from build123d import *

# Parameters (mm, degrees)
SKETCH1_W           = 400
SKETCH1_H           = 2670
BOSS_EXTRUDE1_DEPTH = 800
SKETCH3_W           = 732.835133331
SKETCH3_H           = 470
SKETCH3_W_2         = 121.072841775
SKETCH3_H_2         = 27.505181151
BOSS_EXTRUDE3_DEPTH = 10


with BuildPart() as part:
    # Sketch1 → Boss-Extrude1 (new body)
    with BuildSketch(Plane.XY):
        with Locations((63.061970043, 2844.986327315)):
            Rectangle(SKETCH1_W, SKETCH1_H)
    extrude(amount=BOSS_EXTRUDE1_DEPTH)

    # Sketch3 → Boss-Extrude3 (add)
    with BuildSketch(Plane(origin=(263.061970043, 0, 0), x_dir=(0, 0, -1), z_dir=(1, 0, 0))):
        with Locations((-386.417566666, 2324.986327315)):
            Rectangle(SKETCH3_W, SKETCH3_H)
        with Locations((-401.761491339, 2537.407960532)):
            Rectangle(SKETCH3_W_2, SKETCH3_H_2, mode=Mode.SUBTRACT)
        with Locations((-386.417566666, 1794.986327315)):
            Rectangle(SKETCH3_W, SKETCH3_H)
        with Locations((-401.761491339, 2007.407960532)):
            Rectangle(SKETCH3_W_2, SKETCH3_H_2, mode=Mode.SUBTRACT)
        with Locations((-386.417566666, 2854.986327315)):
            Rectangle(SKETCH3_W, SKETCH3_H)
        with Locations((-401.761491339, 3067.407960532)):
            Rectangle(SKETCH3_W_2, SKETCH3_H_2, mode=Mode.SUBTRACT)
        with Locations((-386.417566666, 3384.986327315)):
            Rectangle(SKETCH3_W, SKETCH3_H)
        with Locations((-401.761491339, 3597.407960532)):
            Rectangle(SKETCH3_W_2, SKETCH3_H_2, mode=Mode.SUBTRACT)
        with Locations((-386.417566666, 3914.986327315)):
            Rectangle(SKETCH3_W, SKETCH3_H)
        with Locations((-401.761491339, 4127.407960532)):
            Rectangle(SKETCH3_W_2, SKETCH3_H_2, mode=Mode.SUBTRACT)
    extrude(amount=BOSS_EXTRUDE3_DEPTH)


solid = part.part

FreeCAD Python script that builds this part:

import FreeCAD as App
import Part
import Sketcher
from FreeCAD import Vector
Q = App.Units.Quantity

doc = App.newDocument("Part")
body = doc.addObject("PartDesign::Body", "Body")

sketch1 = doc.addObject("Sketcher::SketchObject", "Sketch")
body.addObject(sketch1)
sketch1.AttachmentSupport = (doc.XY_Plane, [""])
sketch1.MapMode = "FlatFace"
sketch1.addGeometry(Part.LineSegment(Vector(-137, 4180, 0), Vector(-137, 1510, 0)), False)
sketch1.addGeometry(Part.LineSegment(Vector(-137, 1510, 0), Vector(263, 1510, 0)), False)
sketch1.addGeometry(Part.LineSegment(Vector(263, 1510, 0), Vector(263, 4180, 0)), False)
sketch1.addGeometry(Part.LineSegment(Vector(263, 4180, 0), Vector(-137, 4180, 0)), False)
sketch1.addConstraint(Sketcher.Constraint("Coincident", 0, 2, 1, 1))
sketch1.addConstraint(Sketcher.Constraint("Coincident", 1, 2, 2, 1))
sketch1.addConstraint(Sketcher.Constraint("Coincident", 2, 2, 3, 1))
sketch1.addConstraint(Sketcher.Constraint("Coincident", 3, 2, 0, 1))
sketch1.addConstraint(Sketcher.Constraint("Vertical", 0))
sketch1.addConstraint(Sketcher.Constraint("Horizontal", 1))
sketch1.addConstraint(Sketcher.Constraint("Vertical", 2))
sketch1.addConstraint(Sketcher.Constraint("Horizontal", 3))
sketch1.addConstraint(Sketcher.Constraint("DistanceX", 1, 1, 1, 2, Q("400 mm")))
sketch1.addConstraint(Sketcher.Constraint("DistanceY", 0, 2, 0, 1, Q("2670 mm")))
sketch1.addConstraint(Sketcher.Constraint("DistanceX", 0, 2, -1, 1, Q("136.93803 mm")))
sketch1.addConstraint(Sketcher.Constraint("DistanceY", -1, 1, 0, 2, Q("1509.986327 mm")))
pad1 = doc.addObject("PartDesign::Pad", "Pad")
body.addObject(pad1)
pad1.Profile = sketch1
pad1.Length = 800

sketch2 = doc.addObject("Sketcher::SketchObject", "Sketch001")
body.addObject(sketch2)
sketch2.AttachmentSupport = (doc.YZ_Plane, [""])
sketch2.MapMode = "FlatFace"
sketch2.AttachmentOffset = App.Placement(Vector(0, 0, 263.06197), App.Rotation())
sketch2.addGeometry(Part.LineSegment(Vector(2560, 753, 0), Vector(2090, 753, 0)), False)
sketch2.addGeometry(Part.LineSegment(Vector(2090, 753, 0), Vector(2090, 20, 0)), False)
sketch2.addGeometry(Part.LineSegment(Vector(2090, 20, 0), Vector(2560, 20, 0)), False)
sketch2.addGeometry(Part.LineSegment(Vector(2560, 20, 0), Vector(2560, 753, 0)), False)
sketch2.addGeometry(Part.LineSegment(Vector(2524, 341, 0), Vector(2524, 462, 0)), False)
sketch2.addGeometry(Part.LineSegment(Vector(2524, 462, 0), Vector(2551, 462, 0)), False)
sketch2.addGeometry(Part.LineSegment(Vector(2551, 462, 0), Vector(2551, 341, 0)), False)
sketch2.addGeometry(Part.LineSegment(Vector(2551, 341, 0), Vector(2524, 341, 0)), False)
sketch2.addGeometry(Part.LineSegment(Vector(2030, 753, 0), Vector(1560, 753, 0)), False)
sketch2.addGeometry(Part.LineSegment(Vector(1560, 753, 0), Vector(1560, 20, 0)), False)
sketch2.addGeometry(Part.LineSegment(Vector(1560, 20, 0), Vector(2030, 20, 0)), False)
sketch2.addGeometry(Part.LineSegment(Vector(2030, 20, 0), Vector(2030, 753, 0)), False)
sketch2.addGeometry(Part.LineSegment(Vector(1994, 341, 0), Vector(1994, 462, 0)), False)
sketch2.addGeometry(Part.LineSegment(Vector(1994, 462, 0), Vector(2021, 462, 0)), False)
sketch2.addGeometry(Part.LineSegment(Vector(2021, 462, 0), Vector(2021, 341, 0)), False)
sketch2.addGeometry(Part.LineSegment(Vector(2021, 341, 0), Vector(1994, 341, 0)), False)
sketch2.addGeometry(Part.LineSegment(Vector(3090, 753, 0), Vector(2620, 753, 0)), False)
sketch2.addGeometry(Part.LineSegment(Vector(2620, 753, 0), Vector(2620, 20, 0)), False)
sketch2.addGeometry(Part.LineSegment(Vector(2620, 20, 0), Vector(3090, 20, 0)), False)
sketch2.addGeometry(Part.LineSegment(Vector(3090, 20, 0), Vector(3090, 753, 0)), False)
sketch2.addGeometry(Part.LineSegment(Vector(3054, 341, 0), Vector(3054, 462, 0)), False)
sketch2.addGeometry(Part.LineSegment(Vector(3054, 462, 0), Vector(3081, 462, 0)), False)
sketch2.addGeometry(Part.LineSegment(Vector(3081, 462, 0), Vector(3081, 341, 0)), False)
sketch2.addGeometry(Part.LineSegment(Vector(3081, 341, 0), Vector(3054, 341, 0)), False)
sketch2.addGeometry(Part.LineSegment(Vector(3620, 753, 0), Vector(3150, 753, 0)), False)
sketch2.addGeometry(Part.LineSegment(Vector(3150, 753, 0), Vector(3150, 20, 0)), False)
sketch2.addGeometry(Part.LineSegment(Vector(3150, 20, 0), Vector(3620, 20, 0)), False)
sketch2.addGeometry(Part.LineSegment(Vector(3620, 20, 0), Vector(3620, 753, 0)), False)
sketch2.addGeometry(Part.LineSegment(Vector(3584, 341, 0), Vector(3584, 462, 0)), False)
sketch2.addGeometry(Part.LineSegment(Vector(3584, 462, 0), Vector(3611, 462, 0)), False)
sketch2.addGeometry(Part.LineSegment(Vector(3611, 462, 0), Vector(3611, 341, 0)), False)
sketch2.addGeometry(Part.LineSegment(Vector(3611, 341, 0), Vector(3584, 341, 0)), False)
sketch2.addGeometry(Part.LineSegment(Vector(4150, 753, 0), Vector(3680, 753, 0)), False)
sketch2.addGeometry(Part.LineSegment(Vector(3680, 753, 0), Vector(3680, 20, 0)), False)
sketch2.addGeometry(Part.LineSegment(Vector(3680, 20, 0), Vector(4150, 20, 0)), False)
sketch2.addGeometry(Part.LineSegment(Vector(4150, 20, 0), Vector(4150, 753, 0)), False)
sketch2.addGeometry(Part.LineSegment(Vector(4114, 341, 0), Vector(4114, 462, 0)), False)
sketch2.addGeometry(Part.LineSegment(Vector(4114, 462, 0), Vector(4141, 462, 0)), False)
sketch2.addGeometry(Part.LineSegment(Vector(4141, 462, 0), Vector(4141, 341, 0)), False)
sketch2.addGeometry(Part.LineSegment(Vector(4141, 341, 0), Vector(4114, 341, 0)), False)
sketch2.addConstraint(Sketcher.Constraint("Coincident", 0, 2, 1, 1))
sketch2.addConstraint(Sketcher.Constraint("Coincident", 1, 2, 2, 1))
sketch2.addConstraint(Sketcher.Constraint("Coincident", 2, 2, 3, 1))
sketch2.addConstraint(Sketcher.Constraint("Coincident", 3, 2, 0, 1))
sketch2.addConstraint(Sketcher.Constraint("Coincident", 4, 2, 5, 1))
sketch2.addConstraint(Sketcher.Constraint("Coincident", 5, 2, 6, 1))
sketch2.addConstraint(Sketcher.Constraint("Coincident", 6, 2, 7, 1))
sketch2.addConstraint(Sketcher.Constraint("Coincident", 7, 2, 4, 1))
sketch2.addConstraint(Sketcher.Constraint("Coincident", 8, 2, 9, 1))
sketch2.addConstraint(Sketcher.Constraint("Coincident", 9, 2, 10, 1))
sketch2.addConstraint(Sketcher.Constraint("Coincident", 10, 2, 11, 1))
sketch2.addConstraint(Sketcher.Constraint("Coincident", 11, 2, 8, 1))
sketch2.addConstraint(Sketcher.Constraint("Coincident", 12, 2, 13, 1))
sketch2.addConstraint(Sketcher.Constraint("Coincident", 13, 2, 14, 1))
sketch2.addConstraint(Sketcher.Constraint("Coincident", 14, 2, 15, 1))
sketch2.addConstraint(Sketcher.Constraint("Coincident", 15, 2, 12, 1))
sketch2.addConstraint(Sketcher.Constraint("Coincident", 16, 2, 17, 1))
sketch2.addConstraint(Sketcher.Constraint("Coincident", 17, 2, 18, 1))
sketch2.addConstraint(Sketcher.Constraint("Coincident", 18, 2, 19, 1))
sketch2.addConstraint(Sketcher.Constraint("Coincident", 19, 2, 16, 1))
sketch2.addConstraint(Sketcher.Constraint("Coincident", 20, 2, 21, 1))
sketch2.addConstraint(Sketcher.Constraint("Coincident", 21, 2, 22, 1))
sketch2.addConstraint(Sketcher.Constraint("Coincident", 22, 2, 23, 1))
sketch2.addConstraint(Sketcher.Constraint("Coincident", 23, 2, 20, 1))
sketch2.addConstraint(Sketcher.Constraint("Coincident", 24, 2, 25, 1))
sketch2.addConstraint(Sketcher.Constraint("Coincident", 25, 2, 26, 1))
sketch2.addConstraint(Sketcher.Constraint("Coincident", 26, 2, 27, 1))
sketch2.addConstraint(Sketcher.Constraint("Coincident", 27, 2, 24, 1))
sketch2.addConstraint(Sketcher.Constraint("Coincident", 28, 2, 29, 1))
sketch2.addConstraint(Sketcher.Constraint("Coincident", 29, 2, 30, 1))
sketch2.addConstraint(Sketcher.Constraint("Coincident", 30, 2, 31, 1))
sketch2.addConstraint(Sketcher.Constraint("Coincident", 31, 2, 28, 1))
sketch2.addConstraint(Sketcher.Constraint("Coincident", 32, 2, 33, 1))
sketch2.addConstraint(Sketcher.Constraint("Coincident", 33, 2, 34, 1))
sketch2.addConstraint(Sketcher.Constraint("Coincident", 34, 2, 35, 1))
sketch2.addConstraint(Sketcher.Constraint("Coincident", 35, 2, 32, 1))
sketch2.addConstraint(Sketcher.Constraint("Coincident", 36, 2, 37, 1))
sketch2.addConstraint(Sketcher.Constraint("Coincident", 37, 2, 38, 1))
sketch2.addConstraint(Sketcher.Constraint("Coincident", 38, 2, 39, 1))
sketch2.addConstraint(Sketcher.Constraint("Coincident", 39, 2, 36, 1))
sketch2.addConstraint(Sketcher.Constraint("Horizontal", 0))
sketch2.addConstraint(Sketcher.Constraint("Vertical", 1))
sketch2.addConstraint(Sketcher.Constraint("Horizontal", 2))
sketch2.addConstraint(Sketcher.Constraint("Vertical", 3))
sketch2.addConstraint(Sketcher.Constraint("Vertical", 4))
sketch2.addConstraint(Sketcher.Constraint("Horizontal", 5))
sketch2.addConstraint(Sketcher.Constraint("Vertical", 6))
sketch2.addConstraint(Sketcher.Constraint("Horizontal", 7))
sketch2.addConstraint(Sketcher.Constraint("Horizontal", 8))
sketch2.addConstraint(Sketcher.Constraint("Vertical", 9))
sketch2.addConstraint(Sketcher.Constraint("Horizontal", 10))
sketch2.addConstraint(Sketcher.Constraint("Vertical", 11))
sketch2.addConstraint(Sketcher.Constraint("Vertical", 12))
sketch2.addConstraint(Sketcher.Constraint("Horizontal", 13))
sketch2.addConstraint(Sketcher.Constraint("Vertical", 14))
sketch2.addConstraint(Sketcher.Constraint("Horizontal", 15))
sketch2.addConstraint(Sketcher.Constraint("Horizontal", 16))
sketch2.addConstraint(Sketcher.Constraint("Vertical", 17))
sketch2.addConstraint(Sketcher.Constraint("Horizontal", 18))
sketch2.addConstraint(Sketcher.Constraint("Vertical", 19))
sketch2.addConstraint(Sketcher.Constraint("Vertical", 20))
sketch2.addConstraint(Sketcher.Constraint("Horizontal", 21))
sketch2.addConstraint(Sketcher.Constraint("Vertical", 22))
sketch2.addConstraint(Sketcher.Constraint("Horizontal", 23))
sketch2.addConstraint(Sketcher.Constraint("Horizontal", 24))
sketch2.addConstraint(Sketcher.Constraint("Vertical", 25))
sketch2.addConstraint(Sketcher.Constraint("Horizontal", 26))
sketch2.addConstraint(Sketcher.Constraint("Vertical", 27))
sketch2.addConstraint(Sketcher.Constraint("Vertical", 28))
sketch2.addConstraint(Sketcher.Constraint("Horizontal", 29))
sketch2.addConstraint(Sketcher.Constraint("Vertical", 30))
sketch2.addConstraint(Sketcher.Constraint("Horizontal", 31))
sketch2.addConstraint(Sketcher.Constraint("Horizontal", 32))
sketch2.addConstraint(Sketcher.Constraint("Vertical", 33))
sketch2.addConstraint(Sketcher.Constraint("Horizontal", 34))
sketch2.addConstraint(Sketcher.Constraint("Vertical", 35))
sketch2.addConstraint(Sketcher.Constraint("Vertical", 36))
sketch2.addConstraint(Sketcher.Constraint("Horizontal", 37))
sketch2.addConstraint(Sketcher.Constraint("Vertical", 38))
sketch2.addConstraint(Sketcher.Constraint("Horizontal", 39))
sketch2.addConstraint(Sketcher.Constraint("Horizontal", 3, 2, 8, 2))
sketch2.addConstraint(Sketcher.Constraint("Horizontal", 2, 2, 9, 2))
sketch2.addConstraint(Sketcher.Constraint("Horizontal", 5, 2, 12, 2))
sketch2.addConstraint(Sketcher.Constraint("Horizontal", 7, 2, 14, 2))
sketch2.addConstraint(Sketcher.Constraint("Horizontal", 11, 2, 16, 2))
sketch2.addConstraint(Sketcher.Constraint("Horizontal", 10, 2, 17, 2))
sketch2.addConstraint(Sketcher.Constraint("Horizontal", 13, 2, 20, 2))
sketch2.addConstraint(Sketcher.Constraint("Horizontal", 15, 2, 22, 2))
sketch2.addConstraint(Sketcher.Constraint("Horizontal", 19, 2, 24, 2))
sketch2.addConstraint(Sketcher.Constraint("Horizontal", 18, 2, 25, 2))
sketch2.addConstraint(Sketcher.Constraint("Horizontal", 21, 2, 28, 2))
sketch2.addConstraint(Sketcher.Constraint("Horizontal", 23, 2, 30, 2))
sketch2.addConstraint(Sketcher.Constraint("Horizontal", 27, 2, 32, 2))
sketch2.addConstraint(Sketcher.Constraint("Horizontal", 26, 2, 33, 2))
sketch2.addConstraint(Sketcher.Constraint("Horizontal", 29, 2, 36, 2))
sketch2.addConstraint(Sketcher.Constraint("Horizontal", 31, 2, 38, 2))
sketch2.addConstraint(Sketcher.Constraint("Equal", 2, 8))
sketch2.addConstraint(Sketcher.Constraint("Equal", 7, 13))
sketch2.addConstraint(Sketcher.Constraint("Equal", 10, 16))
sketch2.addConstraint(Sketcher.Constraint("Equal", 15, 21))
sketch2.addConstraint(Sketcher.Constraint("Equal", 18, 24))
sketch2.addConstraint(Sketcher.Constraint("Equal", 23, 29))
sketch2.addConstraint(Sketcher.Constraint("Equal", 26, 32))
sketch2.addConstraint(Sketcher.Constraint("Equal", 31, 37))
sketch2.addConstraint(Sketcher.Constraint("DistanceX", 0, 2, 0, 1, Q("470 mm")))
sketch2.addConstraint(Sketcher.Constraint("DistanceY", -1, 1, 1, 2, Q("20 mm")))
sketch2.addConstraint(Sketcher.Constraint("DistanceX", 8, 2, 0, 2, Q("530 mm")))
sketch2.addConstraint(Sketcher.Constraint("DistanceX", 3, 2, 16, 2, Q("60 mm")))
sketch2.addConstraint(Sketcher.Constraint("DistanceX", 5, 2, 21, 2, Q("530 mm")))
sketch2.addConstraint(Sketcher.Constraint("DistanceX", 19, 2, 24, 2, Q("60 mm")))
sketch2.addConstraint(Sketcher.Constraint("DistanceX", 21, 2, 29, 2, Q("530 mm")))
sketch2.addConstraint(Sketcher.Constraint("DistanceX", 27, 2, 32, 2, Q("60 mm")))
sketch2.addConstraint(Sketcher.Constraint("DistanceX", 29, 2, 37, 2, Q("530 mm")))
sketch2.addConstraint(Sketcher.Constraint("DistanceX", 5, 1, 5, 2, Q("27.505181 mm")))
sketch2.addConstraint(Sketcher.Constraint("DistanceY", 4, 1, 4, 2, Q("121.072842 mm")))
sketch2.addConstraint(Sketcher.Constraint("DistanceY", 1, 2, 1, 1, Q("732.835133 mm")))
sketch2.addConstraint(Sketcher.Constraint("DistanceX", -1, 1, 4, 2, Q("2523.65537 mm")))
sketch2.addConstraint(Sketcher.Constraint("DistanceY", -1, 1, 6, 2, Q("341.22507 mm")))
sketch2.addConstraint(Sketcher.Constraint("DistanceX", -1, 1, 12, 2, Q("1993.65537 mm")))
sketch2.addConstraint(Sketcher.Constraint("DistanceX", -1, 1, 0, 2, Q("2089.986327 mm")))
pad2 = doc.addObject("PartDesign::Pad", "Pad001")
body.addObject(pad2)
pad2.Profile = sketch2
pad2.Length = 10

doc.recompute()
